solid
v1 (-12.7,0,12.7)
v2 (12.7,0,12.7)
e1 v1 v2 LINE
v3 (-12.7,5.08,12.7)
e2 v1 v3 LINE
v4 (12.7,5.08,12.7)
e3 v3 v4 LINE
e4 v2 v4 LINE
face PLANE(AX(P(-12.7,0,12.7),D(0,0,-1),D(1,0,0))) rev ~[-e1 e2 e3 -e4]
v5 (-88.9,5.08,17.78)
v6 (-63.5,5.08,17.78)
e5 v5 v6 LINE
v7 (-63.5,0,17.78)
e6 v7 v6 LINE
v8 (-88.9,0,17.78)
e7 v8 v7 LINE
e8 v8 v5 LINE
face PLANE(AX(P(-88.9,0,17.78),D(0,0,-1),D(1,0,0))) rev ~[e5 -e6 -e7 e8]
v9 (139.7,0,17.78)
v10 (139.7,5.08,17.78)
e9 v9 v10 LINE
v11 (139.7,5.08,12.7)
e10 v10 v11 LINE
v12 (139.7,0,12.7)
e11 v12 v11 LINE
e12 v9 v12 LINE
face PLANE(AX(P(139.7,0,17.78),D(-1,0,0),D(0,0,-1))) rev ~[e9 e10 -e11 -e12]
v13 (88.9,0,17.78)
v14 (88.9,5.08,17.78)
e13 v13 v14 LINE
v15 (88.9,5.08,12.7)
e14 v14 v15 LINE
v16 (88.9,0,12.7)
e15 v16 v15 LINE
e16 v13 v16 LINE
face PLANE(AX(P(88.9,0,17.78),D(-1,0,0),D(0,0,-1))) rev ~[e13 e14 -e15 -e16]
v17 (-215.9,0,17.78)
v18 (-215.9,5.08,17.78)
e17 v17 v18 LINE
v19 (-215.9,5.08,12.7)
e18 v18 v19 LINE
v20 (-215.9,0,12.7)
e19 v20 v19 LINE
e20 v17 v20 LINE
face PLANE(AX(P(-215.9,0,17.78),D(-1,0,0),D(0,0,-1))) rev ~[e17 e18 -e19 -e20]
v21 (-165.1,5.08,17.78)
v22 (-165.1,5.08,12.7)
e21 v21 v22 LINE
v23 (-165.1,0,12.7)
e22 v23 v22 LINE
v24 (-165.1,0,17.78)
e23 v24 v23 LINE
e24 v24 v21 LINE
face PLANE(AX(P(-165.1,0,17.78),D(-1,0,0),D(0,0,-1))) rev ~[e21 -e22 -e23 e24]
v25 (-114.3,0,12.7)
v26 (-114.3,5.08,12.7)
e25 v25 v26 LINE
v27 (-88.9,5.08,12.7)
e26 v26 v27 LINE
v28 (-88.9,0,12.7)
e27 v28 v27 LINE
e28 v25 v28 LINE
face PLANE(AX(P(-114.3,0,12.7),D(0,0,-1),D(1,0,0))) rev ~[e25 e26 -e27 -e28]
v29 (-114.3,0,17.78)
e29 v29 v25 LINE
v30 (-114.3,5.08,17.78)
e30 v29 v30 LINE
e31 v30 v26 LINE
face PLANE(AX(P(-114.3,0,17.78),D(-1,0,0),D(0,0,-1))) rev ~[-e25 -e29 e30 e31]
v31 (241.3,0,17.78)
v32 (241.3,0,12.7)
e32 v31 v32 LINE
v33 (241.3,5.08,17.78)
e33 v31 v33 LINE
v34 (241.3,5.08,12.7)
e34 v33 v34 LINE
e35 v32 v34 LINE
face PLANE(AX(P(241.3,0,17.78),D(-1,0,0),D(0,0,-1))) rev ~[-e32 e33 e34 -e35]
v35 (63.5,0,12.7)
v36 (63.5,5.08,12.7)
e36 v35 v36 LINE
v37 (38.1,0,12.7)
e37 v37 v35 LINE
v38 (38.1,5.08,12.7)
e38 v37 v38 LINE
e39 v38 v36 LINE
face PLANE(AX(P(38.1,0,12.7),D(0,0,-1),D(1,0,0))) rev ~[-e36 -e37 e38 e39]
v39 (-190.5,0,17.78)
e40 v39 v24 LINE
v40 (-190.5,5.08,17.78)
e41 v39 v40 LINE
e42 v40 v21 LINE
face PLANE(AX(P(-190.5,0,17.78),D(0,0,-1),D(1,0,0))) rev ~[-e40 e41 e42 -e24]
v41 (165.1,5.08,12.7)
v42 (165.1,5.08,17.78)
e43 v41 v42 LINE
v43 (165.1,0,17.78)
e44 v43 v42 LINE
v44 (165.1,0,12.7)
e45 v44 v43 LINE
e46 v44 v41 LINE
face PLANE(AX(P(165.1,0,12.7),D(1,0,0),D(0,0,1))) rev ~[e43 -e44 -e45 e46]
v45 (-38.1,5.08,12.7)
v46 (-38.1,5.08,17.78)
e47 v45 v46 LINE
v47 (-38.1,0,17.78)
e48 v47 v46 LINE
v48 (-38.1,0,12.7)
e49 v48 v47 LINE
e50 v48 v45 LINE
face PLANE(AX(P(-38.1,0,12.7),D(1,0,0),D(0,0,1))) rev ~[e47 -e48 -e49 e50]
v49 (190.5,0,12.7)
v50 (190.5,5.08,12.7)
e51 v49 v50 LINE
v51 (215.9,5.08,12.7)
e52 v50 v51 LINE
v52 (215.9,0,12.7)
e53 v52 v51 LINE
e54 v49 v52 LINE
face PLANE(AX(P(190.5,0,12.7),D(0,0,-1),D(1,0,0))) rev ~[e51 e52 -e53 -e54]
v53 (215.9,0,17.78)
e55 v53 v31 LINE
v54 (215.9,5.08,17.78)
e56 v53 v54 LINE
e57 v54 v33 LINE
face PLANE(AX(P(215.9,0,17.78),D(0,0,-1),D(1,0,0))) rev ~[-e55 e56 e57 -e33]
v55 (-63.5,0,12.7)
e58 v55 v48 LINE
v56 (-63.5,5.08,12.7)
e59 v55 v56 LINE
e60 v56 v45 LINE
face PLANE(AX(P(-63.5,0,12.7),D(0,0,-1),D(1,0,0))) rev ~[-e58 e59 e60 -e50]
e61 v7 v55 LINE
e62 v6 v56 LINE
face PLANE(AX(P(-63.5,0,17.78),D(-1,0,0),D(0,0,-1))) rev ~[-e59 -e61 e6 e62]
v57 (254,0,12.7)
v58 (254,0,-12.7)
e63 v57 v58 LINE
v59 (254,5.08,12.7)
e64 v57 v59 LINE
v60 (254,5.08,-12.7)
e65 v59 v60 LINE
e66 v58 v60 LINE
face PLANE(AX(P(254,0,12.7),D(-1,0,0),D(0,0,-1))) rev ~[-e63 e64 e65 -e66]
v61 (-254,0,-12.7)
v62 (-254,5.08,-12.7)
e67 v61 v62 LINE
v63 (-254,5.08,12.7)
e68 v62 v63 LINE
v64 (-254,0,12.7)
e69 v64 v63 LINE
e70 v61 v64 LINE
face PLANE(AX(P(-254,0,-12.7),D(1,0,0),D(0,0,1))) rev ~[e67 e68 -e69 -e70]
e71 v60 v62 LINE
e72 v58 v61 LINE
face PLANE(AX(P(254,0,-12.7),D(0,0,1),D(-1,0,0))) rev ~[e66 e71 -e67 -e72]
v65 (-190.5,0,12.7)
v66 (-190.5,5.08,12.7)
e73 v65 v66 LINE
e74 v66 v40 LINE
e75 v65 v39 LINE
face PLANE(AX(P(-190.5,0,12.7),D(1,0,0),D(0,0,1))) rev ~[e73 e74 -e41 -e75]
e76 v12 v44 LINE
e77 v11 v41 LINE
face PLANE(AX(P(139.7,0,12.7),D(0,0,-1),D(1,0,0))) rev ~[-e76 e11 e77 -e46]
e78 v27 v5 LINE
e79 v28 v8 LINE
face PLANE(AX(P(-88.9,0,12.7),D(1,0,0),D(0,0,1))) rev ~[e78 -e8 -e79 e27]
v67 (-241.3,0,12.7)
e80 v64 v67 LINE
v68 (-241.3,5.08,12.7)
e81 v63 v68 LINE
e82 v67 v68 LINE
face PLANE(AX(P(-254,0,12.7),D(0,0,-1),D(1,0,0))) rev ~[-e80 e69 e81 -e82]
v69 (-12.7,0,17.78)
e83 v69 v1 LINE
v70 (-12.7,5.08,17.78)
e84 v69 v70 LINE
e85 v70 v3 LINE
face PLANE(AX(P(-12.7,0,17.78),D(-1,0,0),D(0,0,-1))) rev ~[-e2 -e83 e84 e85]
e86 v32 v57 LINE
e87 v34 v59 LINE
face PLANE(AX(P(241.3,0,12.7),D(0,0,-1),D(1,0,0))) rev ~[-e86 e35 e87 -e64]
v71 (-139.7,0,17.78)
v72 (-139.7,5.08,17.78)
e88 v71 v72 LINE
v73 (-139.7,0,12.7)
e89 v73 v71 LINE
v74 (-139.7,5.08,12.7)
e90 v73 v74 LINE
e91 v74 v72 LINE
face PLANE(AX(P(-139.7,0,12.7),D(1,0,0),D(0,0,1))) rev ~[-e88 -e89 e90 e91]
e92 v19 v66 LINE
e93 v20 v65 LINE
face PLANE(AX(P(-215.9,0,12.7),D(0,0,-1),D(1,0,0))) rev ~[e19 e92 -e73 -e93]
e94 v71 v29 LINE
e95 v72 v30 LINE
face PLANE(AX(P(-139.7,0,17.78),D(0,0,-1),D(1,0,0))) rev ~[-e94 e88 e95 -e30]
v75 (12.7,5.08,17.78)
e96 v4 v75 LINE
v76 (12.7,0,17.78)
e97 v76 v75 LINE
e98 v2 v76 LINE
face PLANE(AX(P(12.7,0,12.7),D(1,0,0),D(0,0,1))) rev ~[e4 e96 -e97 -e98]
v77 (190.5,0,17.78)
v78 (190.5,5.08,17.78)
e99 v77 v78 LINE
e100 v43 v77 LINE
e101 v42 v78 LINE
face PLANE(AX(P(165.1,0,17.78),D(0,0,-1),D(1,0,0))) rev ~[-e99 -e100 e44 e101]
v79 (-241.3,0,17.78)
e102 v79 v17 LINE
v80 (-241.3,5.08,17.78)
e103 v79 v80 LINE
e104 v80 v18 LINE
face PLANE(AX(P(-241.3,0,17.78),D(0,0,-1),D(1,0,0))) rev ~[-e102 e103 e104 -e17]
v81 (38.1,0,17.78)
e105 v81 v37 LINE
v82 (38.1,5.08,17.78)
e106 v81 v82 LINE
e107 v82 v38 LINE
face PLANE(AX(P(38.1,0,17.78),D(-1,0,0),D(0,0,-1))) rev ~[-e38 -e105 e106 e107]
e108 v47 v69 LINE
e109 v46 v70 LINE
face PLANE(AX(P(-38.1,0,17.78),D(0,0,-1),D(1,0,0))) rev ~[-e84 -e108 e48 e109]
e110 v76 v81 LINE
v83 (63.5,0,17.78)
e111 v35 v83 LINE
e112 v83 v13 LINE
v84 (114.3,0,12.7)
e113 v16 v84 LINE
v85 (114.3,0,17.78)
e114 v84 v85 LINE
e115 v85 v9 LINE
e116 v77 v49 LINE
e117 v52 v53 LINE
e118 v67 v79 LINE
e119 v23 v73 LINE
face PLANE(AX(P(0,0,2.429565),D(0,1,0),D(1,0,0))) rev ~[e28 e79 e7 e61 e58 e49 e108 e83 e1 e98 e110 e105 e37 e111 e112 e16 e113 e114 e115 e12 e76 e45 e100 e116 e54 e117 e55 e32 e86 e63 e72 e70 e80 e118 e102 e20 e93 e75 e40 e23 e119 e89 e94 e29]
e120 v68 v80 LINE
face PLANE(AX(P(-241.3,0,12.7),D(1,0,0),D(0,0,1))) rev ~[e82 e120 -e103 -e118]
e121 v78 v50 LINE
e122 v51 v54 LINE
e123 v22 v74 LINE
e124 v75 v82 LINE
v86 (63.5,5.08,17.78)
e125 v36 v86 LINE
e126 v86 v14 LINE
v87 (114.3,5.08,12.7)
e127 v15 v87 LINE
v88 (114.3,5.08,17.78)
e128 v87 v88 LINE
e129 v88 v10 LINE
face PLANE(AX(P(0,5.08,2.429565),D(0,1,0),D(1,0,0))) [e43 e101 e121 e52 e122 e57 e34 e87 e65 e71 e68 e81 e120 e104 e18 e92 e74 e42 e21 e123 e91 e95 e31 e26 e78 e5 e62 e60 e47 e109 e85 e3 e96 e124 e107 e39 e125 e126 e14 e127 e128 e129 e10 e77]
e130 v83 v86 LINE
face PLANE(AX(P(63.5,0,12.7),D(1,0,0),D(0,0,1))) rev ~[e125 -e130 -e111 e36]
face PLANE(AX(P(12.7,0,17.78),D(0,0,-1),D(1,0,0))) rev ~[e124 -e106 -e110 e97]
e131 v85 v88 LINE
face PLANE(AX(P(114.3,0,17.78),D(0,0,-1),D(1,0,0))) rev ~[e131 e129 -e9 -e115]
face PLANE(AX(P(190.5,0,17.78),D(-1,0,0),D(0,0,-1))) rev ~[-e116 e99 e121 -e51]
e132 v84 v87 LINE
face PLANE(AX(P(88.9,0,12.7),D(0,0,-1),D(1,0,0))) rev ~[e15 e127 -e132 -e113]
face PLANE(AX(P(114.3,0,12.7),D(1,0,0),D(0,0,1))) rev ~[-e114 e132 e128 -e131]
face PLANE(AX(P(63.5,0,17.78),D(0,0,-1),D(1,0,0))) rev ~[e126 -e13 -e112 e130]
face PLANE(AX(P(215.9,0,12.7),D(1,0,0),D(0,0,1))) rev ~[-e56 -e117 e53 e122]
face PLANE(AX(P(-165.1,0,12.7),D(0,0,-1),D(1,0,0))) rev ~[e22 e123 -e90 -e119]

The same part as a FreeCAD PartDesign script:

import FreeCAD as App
import Part
import Sketcher

V = App.Vector
Q = App.Units.Quantity

doc = App.newDocument("Part")
body = doc.addObject("PartDesign::Body", "Body")

# Sketch on XZ plane
sketch1 = body.newObject("Sketcher::SketchObject", "Sketch")
sketch1.AttachmentSupport = (doc.getObject("XZ_Plane"), [""])
sketch1.MapMode = "FlatFace"
sketch1.addGeometry(Part.LineSegment(V(-190, 13, 0), V(-190, 18, 0)), False)
sketch1.addGeometry(Part.LineSegment(V(-190, 18, 0), V(-165, 18, 0)), False)
sketch1.addGeometry(Part.LineSegment(V(-165, 18, 0), V(-165, 13, 0)), False)
sketch1.addGeometry(Part.LineSegment(V(-165, 13, 0), V(-140, 13, 0)), False)
sketch1.addGeometry(Part.LineSegment(V(-140, 13, 0), V(-140, 18, 0)), False)
sketch1.addGeometry(Part.LineSegment(V(-140, 18, 0), V(-114, 18, 0)), False)
sketch1.addGeometry(Part.LineSegment(V(-114, 18, 0), V(-114, 13, 0)), False)
sketch1.addGeometry(Part.LineSegment(V(-114, 13, 0), V(-89, 13, 0)), False)
sketch1.addGeometry(Part.LineSegment(V(-89, 13, 0), V(-89, 18, 0)), False)
sketch1.addGeometry(Part.LineSegment(V(-89, 18, 0), V(-64, 18, 0)), False)
sketch1.addGeometry(Part.LineSegment(V(-64, 18, 0), V(-64, 13, 0)), False)
sketch1.addGeometry(Part.LineSegment(V(-64, 13, 0), V(-38, 13, 0)), False)
sketch1.addGeometry(Part.LineSegment(V(-38, 13, 0), V(-38, 18, 0)), False)
sketch1.addGeometry(Part.LineSegment(V(-38, 18, 0), V(-13, 18, 0)), False)
sketch1.addGeometry(Part.LineSegment(V(-13, 18, 0), V(-13, 13, 0)), False)
sketch1.addGeometry(Part.LineSegment(V(-13, 13, 0), V(13, 13, 0)), False)
sketch1.addGeometry(Part.LineSegment(V(13, 13, 0), V(13, 18, 0)), False)
sketch1.addGeometry(Part.LineSegment(V(13, 18, 0), V(38, 18, 0)), False)
sketch1.addGeometry(Part.LineSegment(V(38, 18, 0), V(38, 13, 0)), False)
sketch1.addGeometry(Part.LineSegment(V(38, 13, 0), V(64, 13, 0)), False)
sketch1.addGeometry(Part.LineSegment(V(64, 13, 0), V(64, 18, 0)), False)
sketch1.addGeometry(Part.LineSegment(V(64, 18, 0), V(89, 18, 0)), False)
sketch1.addGeometry(Part.LineSegment(V(89, 18, 0), V(89, 13, 0)), False)
sketch1.addGeometry(Part.LineSegment(V(89, 13, 0), V(114, 13, 0)), False)
sketch1.addGeometry(Part.LineSegment(V(114, 13, 0), V(114, 18, 0)), False)
sketch1.addGeometry(Part.LineSegment(V(114, 18, 0), V(140, 18, 0)), False)
sketch1.addGeometry(Part.LineSegment(V(140, 18, 0), V(140, 13, 0)), False)
sketch1.addGeometry(Part.LineSegment(V(140, 13, 0), V(165, 13, 0)), False)
sketch1.addGeometry(Part.LineSegment(V(165, 13, 0), V(165, 18, 0)), False)
sketch1.addGeometry(Part.LineSegment(V(165, 18, 0), V(190, 18, 0)), False)
sketch1.addGeometry(Part.LineSegment(V(190, 18, 0), V(190, 13, 0)), False)
sketch1.addGeometry(Part.LineSegment(V(190, 13, 0), V(216, 13, 0)), False)
sketch1.addGeometry(Part.LineSegment(V(216, 13, 0), V(216, 18, 0)), False)
sketch1.addGeometry(Part.LineSegment(V(216, 18, 0), V(241, 18, 0)), False)
sketch1.addGeometry(Part.LineSegment(V(241, 18, 0), V(241, 13, 0)), False)
sketch1.addGeometry(Part.LineSegment(V(241, 13, 0), V(254, 13, 0)), False)
sketch1.addGeometry(Part.LineSegment(V(254, 13, 0), V(254, -13, 0)), False)
sketch1.addGeometry(Part.LineSegment(V(254, -13, 0), V(-254, -13, 0)), False)
sketch1.addGeometry(Part.LineSegment(V(-254, -13, 0), V(-254, 13, 0)), False)
sketch1.addGeometry(Part.LineSegment(V(-254, 13, 0), V(-241, 13, 0)), False)
sketch1.addGeometry(Part.LineSegment(V(-241, 13, 0), V(-241, 18, 0)), False)
sketch1.addGeometry(Part.LineSegment(V(-241, 18, 0), V(-216, 18, 0)), False)
sketch1.addGeometry(Part.LineSegment(V(-216, 18, 0), V(-216, 13, 0)), False)
sketch1.addGeometry(Part.LineSegment(V(-216, 13, 0), V(-190, 13, 0)), False)
sketch1.addConstraint(Sketcher.Constraint("Coincident", 0, 2, 1, 1))
sketch1.addConstraint(Sketcher.Constraint("Coincident", 1, 2, 2, 1))
sketch1.addConstraint(Sketcher.Constraint("Coincident", 2, 2, 3, 1))
sketch1.addConstraint(Sketcher.Constraint("Coincident", 3, 2, 4, 1))
sketch1.addConstraint(Sketcher.Constraint("Coincident", 4, 2, 5, 1))
sketch1.addConstraint(Sketcher.Constraint("Coincident", 5, 2, 6, 1))
sketch1.addConstraint(Sketcher.Constraint("Coincident", 6, 2, 7, 1))
sketch1.addConstraint(Sketcher.Constraint("Coincident", 7, 2, 8, 1))
sketch1.addConstraint(Sketcher.Constraint("Coincident", 8, 2, 9, 1))
sketch1.addConstraint(Sketcher.Constraint("Coincident", 9, 2, 10, 1))
sketch1.addConstraint(Sketcher.Constraint("Coincident", 10, 2, 11, 1))
sketch1.addConstraint(Sketcher.Constraint("Coincident", 11, 2, 12, 1))
sketch1.addConstraint(Sketcher.Constraint("Coincident", 12, 2, 13, 1))
sketch1.addConstraint(Sketcher.Constraint("Coincident", 13, 2, 14, 1))
sketch1.addConstraint(Sketcher.Constraint("Coincident", 14, 2, 15, 1))
sketch1.addConstraint(Sketcher.Constraint("Coincident", 15, 2, 16, 1))
sketch1.addConstraint(Sketcher.Constraint("Coincident", 16, 2, 17, 1))
sketch1.addConstraint(Sketcher.Constraint("Coincident", 17, 2, 18, 1))
sketch1.addConstraint(Sketcher.Constraint("Coincident", 18, 2, 19, 1))
sketch1.addConstraint(Sketcher.Constraint("Coincident", 19, 2, 20, 1))
sketch1.addConstraint(Sketcher.Constraint("Coincident", 20, 2, 21, 1))
sketch1.addConstraint(Sketcher.Constraint("Coincident", 21, 2, 22, 1))
sketch1.addConstraint(Sketcher.Constraint("Coincident", 22, 2, 23, 1))
sketch1.addConstraint(Sketcher.Constraint("Coincident", 23, 2, 24, 1))
sketch1.addConstraint(Sketcher.Constraint("Coincident", 24, 2, 25, 1))
sketch1.addConstraint(Sketcher.Constraint("Coincident", 25, 2, 26, 1))
sketch1.addConstraint(Sketcher.Constraint("Coincident", 26, 2, 27, 1))
sketch1.addConstraint(Sketcher.Constraint("Coincident", 27, 2, 28, 1))
sketch1.addConstraint(Sketcher.Constraint("Coincident", 28, 2, 29, 1))
sketch1.addConstraint(Sketcher.Constraint("Coincident", 29, 2, 30, 1))
sketch1.addConstraint(Sketcher.Constraint("Coincident", 30, 2, 31, 1))
sketch1.addConstraint(Sketcher.Constraint("Coincident", 31, 2, 32, 1))
sketch1.addConstraint(Sketcher.Constraint("Coincident", 32, 2, 33, 1))
sketch1.addConstraint(Sketcher.Constraint("Coincident", 33, 2, 34, 1))
sketch1.addConstraint(Sketcher.Constraint("Coincident", 34, 2, 35, 1))
sketch1.addConstraint(Sketcher.Constraint("Coincident", 35, 2, 36, 1))
sketch1.addConstraint(Sketcher.Constraint("Coincident", 36, 2, 37, 1))
sketch1.addConstraint(Sketcher.Constraint("Coincident", 37, 2, 38, 1))
sketch1.addConstraint(Sketcher.Constraint("Coincident", 38, 2, 39, 1))
sketch1.addConstraint(Sketcher.Constraint("Coincident", 39, 2, 40, 1))
sketch1.addConstraint(Sketcher.Constraint("Coincident", 40, 2, 41, 1))
sketch1.addConstraint(Sketcher.Constraint("Coincident", 41, 2, 42, 1))
sketch1.addConstraint(Sketcher.Constraint("Coincident", 42, 2, 43, 1))
sketch1.addConstraint(Sketcher.Constraint("Coincident", 43, 2, 0, 1))
sketch1.addConstraint(Sketcher.Constraint("Vertical", 0))
sketch1.addConstraint(Sketcher.Constraint("Horizontal", 1))
sketch1.addConstraint(Sketcher.Constraint("Vertical", 2))
sketch1.addConstraint(Sketcher.Constraint("Horizontal", 3))
sketch1.addConstraint(Sketcher.Constraint("Vertical", 4))
sketch1.addConstraint(Sketcher.Constraint("Horizontal", 5))
sketch1.addConstraint(Sketcher.Constraint("Vertical", 6))
sketch1.addConstraint(Sketcher.Constraint("Horizontal", 7))
sketch1.addConstraint(Sketcher.Constraint("Vertical", 8))
sketch1.addConstraint(Sketcher.Constraint("Horizontal", 9))
sketch1.addConstraint(Sketcher.Constraint("Vertical", 10))
sketch1.addConstraint(Sketcher.Constraint("Horizontal", 11))
sketch1.addConstraint(Sketcher.Constraint("Vertical", 12))
sketch1.addConstraint(Sketcher.Constraint("Horizontal", 13))
sketch1.addConstraint(Sketcher.Constraint("Vertical", 14))
sketch1.addConstraint(Sketcher.Constraint("Horizontal", 15))
sketch1.addConstraint(Sketcher.Constraint("Vertical", 16))
sketch1.addConstraint(Sketcher.Constraint("Horizontal", 17))
sketch1.addConstraint(Sketcher.Constraint("Vertical", 18))
sketch1.addConstraint(Sketcher.Constraint("Horizontal", 19))
sketch1.addConstraint(Sketcher.Constraint("Vertical", 20))
sketch1.addConstraint(Sketcher.Constraint("Horizontal", 21))
sketch1.addConstraint(Sketcher.Constraint("Vertical", 22))
sketch1.addConstraint(Sketcher.Constraint("Horizontal", 23))
sketch1.addConstraint(Sketcher.Constraint("Vertical", 24))
sketch1.addConstraint(Sketcher.Constraint("Horizontal", 25))
sketch1.addConstraint(Sketcher.Constraint("Vertical", 26))
sketch1.addConstraint(Sketcher.Constraint("Horizontal", 27))
sketch1.addConstraint(Sketcher.Constraint("Vertical", 28))
sketch1.addConstraint(Sketcher.Constraint("Horizontal", 29))
sketch1.addConstraint(Sketcher.Constraint("Vertical", 30))
sketch1.addConstraint(Sketcher.Constraint("Horizontal", 31))
sketch1.addConstraint(Sketcher.Constraint("Vertical", 32))
sketch1.addConstraint(Sketcher.Constraint("Horizontal", 33))
sketch1.addConstraint(Sketcher.Constraint("Vertical", 34))
sketch1.addConstraint(Sketcher.Constraint("Horizontal", 35))
sketch1.addConstraint(Sketcher.Constraint("Vertical", 36))
sketch1.addConstraint(Sketcher.Constraint("Horizontal", 37))
sketch1.addConstraint(Sketcher.Constraint("Vertical", 38))
sketch1.addConstraint(Sketcher.Constraint("Horizontal", 39))
sketch1.addConstraint(Sketcher.Constraint("Vertical", 40))
sketch1.addConstraint(Sketcher.Constraint("Horizontal", 41))
sketch1.addConstraint(Sketcher.Constraint("Vertical", 42))
sketch1.addConstraint(Sketcher.Constraint("Horizontal", 43))
sketch1.addConstraint(Sketcher.Constraint("Symmetric", 35, 2, 37, 2, -1, 1))
sketch1.addConstraint(Sketcher.Constraint("Symmetric", 13, 2, 16, 2, -2))
sketch1.addConstraint(Sketcher.Constraint("Symmetric", 11, 2, 18, 2, -2))
sketch1.addConstraint(Sketcher.Constraint("Symmetric", 9, 2, 20, 2, -2))
sketch1.addConstraint(Sketcher.Constraint("Symmetric", 7, 2, 22, 2, -2))
sketch1.addConstraint(Sketcher.Constraint("Symmetric", 5, 2, 24, 2, -2))
sketch1.addConstraint(Sketcher.Constraint("Symmetric", 3, 2, 26, 2, -2))
sketch1.addConstraint(Sketcher.Constraint("Symmetric", 1, 2, 28, 2, -2))
sketch1.addConstraint(Sketcher.Constraint("Symmetric", 34, 2, 39, 2, -2))
sketch1.addConstraint(Sketcher.Constraint("Symmetric", 32, 2, 41, 2, -2))
sketch1.addConstraint(Sketcher.Constraint("Symmetric", 30, 2, 43, 2, -2))
sketch1.addConstraint(Sketcher.Constraint("Horizontal", 1, 2, 4, 2))
sketch1.addConstraint(Sketcher.Constraint("Horizontal", 3, 2, 6, 2))
sketch1.addConstraint(Sketcher.Constraint("Horizontal", 5, 2, 8, 2))
sketch1.addConstraint(Sketcher.Constraint("Horizontal", 7, 2, 10, 2))
sketch1.addConstraint(Sketcher.Constraint("Horizontal", 9, 2, 12, 2))
sketch1.addConstraint(Sketcher.Constraint("Horizontal", 11, 2, 14, 2))
sketch1.addConstraint(Sketcher.Constraint("Horizontal", 27, 2, 30, 2))
sketch1.addConstraint(Sketcher.Constraint("Horizontal", 29, 2, 32, 2))
sketch1.addConstraint(Sketcher.Constraint("Horizontal", 31, 2, 34, 2))
sketch1.addConstraint(Sketcher.Constraint("Equal", 1, 3))
sketch1.addConstraint(Sketcher.Constraint("Equal", 3, 5))
sketch1.addConstraint(Sketcher.Constraint("Equal", 5, 7))
sketch1.addConstraint(Sketcher.Constraint("Equal", 7, 9))
sketch1.addConstraint(Sketcher.Constraint("Equal", 9, 11))
sketch1.addConstraint(Sketcher.Constraint("Equal", 11, 13))
sketch1.addConstraint(Sketcher.Constraint("Equal", 13, 15))
sketch1.addConstraint(Sketcher.Constraint("Equal", 29, 31))
sketch1.addConstraint(Sketcher.Constraint("Equal", 31, 33))
sketch1.addConstraint(Sketcher.Constraint("Equal", 43, 36))
sketch1.addConstraint(Sketcher.Constraint("DistanceX", 1, 1, 1, 2, Q("1 in")))
sketch1.addConstraint(Sketcher.Constraint("DistanceX", 37, 2, 37, 1, Q("20 in")))
sketch1.addConstraint(Sketcher.Constraint("DistanceY", 0, 1, 0, 2, Q("0.2 in")))
pad1 = body.newObject("PartDesign::Pad", "Pad")
pad1.Profile = sketch1
pad1.Length = Q("0.2 in")
pad1.Reversed = True

doc.recompute()
